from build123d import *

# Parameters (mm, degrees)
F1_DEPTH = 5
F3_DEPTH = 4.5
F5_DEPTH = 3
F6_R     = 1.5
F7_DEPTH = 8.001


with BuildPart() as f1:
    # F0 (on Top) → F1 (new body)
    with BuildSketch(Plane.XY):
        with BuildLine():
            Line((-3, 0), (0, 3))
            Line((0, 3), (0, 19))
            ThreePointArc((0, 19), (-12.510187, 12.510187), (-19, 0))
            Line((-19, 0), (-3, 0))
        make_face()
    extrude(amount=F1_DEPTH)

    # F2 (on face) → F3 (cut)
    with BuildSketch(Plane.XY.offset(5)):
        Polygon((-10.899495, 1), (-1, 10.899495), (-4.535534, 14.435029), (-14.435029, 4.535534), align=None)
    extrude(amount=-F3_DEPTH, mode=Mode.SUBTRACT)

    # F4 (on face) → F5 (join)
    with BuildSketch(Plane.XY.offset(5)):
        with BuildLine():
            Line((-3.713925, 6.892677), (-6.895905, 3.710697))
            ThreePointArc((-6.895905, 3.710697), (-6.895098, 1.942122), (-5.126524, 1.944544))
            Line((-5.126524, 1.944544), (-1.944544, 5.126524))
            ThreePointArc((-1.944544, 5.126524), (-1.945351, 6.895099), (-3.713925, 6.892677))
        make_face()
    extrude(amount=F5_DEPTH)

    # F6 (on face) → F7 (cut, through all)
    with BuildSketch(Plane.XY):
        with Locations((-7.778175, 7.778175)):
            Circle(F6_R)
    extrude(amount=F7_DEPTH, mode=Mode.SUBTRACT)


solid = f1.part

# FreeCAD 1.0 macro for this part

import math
import FreeCAD as App
import Part
import Sketcher

V = App.Vector
Q = App.Units.Quantity

doc = App.newDocument("Part")
body = doc.addObject("PartDesign::Body", "Body")

# Sketch on XY plane
sketch1 = body.newObject("Sketcher::SketchObject", "Sketch")
sketch1.AttachmentSupport = (doc.getObject("XY_Plane"), [""])
sketch1.MapMode = "FlatFace"
sketch1.addGeometry([
    Part.LineSegment(V(-3, 0, 0), V(0, 3, 0)),
    Part.LineSegment(V(0, 3, 0), V(0, 19, 0)),
    Part.ArcOfCircle(Part.Circle(V(4, -4, 0), V(0, 0, 1), 23.3), math.radians(100), math.radians(170)),
    Part.LineSegment(V(-19, 0, 0), V(-3, 0, 0)),
], False)
sketch1.addConstraint([
    Sketcher.Constraint("Coincident", 0, 2, 1, 1),
    Sketcher.Constraint("Coincident", 1, 2, 2, 1),
    Sketcher.Constraint("Coincident", 2, 2, 3, 1),
    Sketcher.Constraint("Coincident", 3, 2, 0, 1),
    Sketcher.Constraint("Vertical", 1),
    Sketcher.Constraint("Horizontal", 3),
    Sketcher.Constraint("PointOnObject", 0, 2, -2),
    Sketcher.Constraint("PointOnObject", 2, 2, -1),
    Sketcher.Constraint("Equal", 3, 1),
    Sketcher.Constraint("DistanceX", 3, 1, 3, 2, Q("16 mm")),
    Sketcher.Constraint("Angle", 0, Q("45 deg")),
    Sketcher.Constraint("DistanceY", -1, 1, 0, 2, Q("3 mm")),
    Sketcher.Constraint("Radius", 2, Q("23.328664 mm")),
])
pad1 = body.newObject("PartDesign::Pad", "Pad")
pad1.Profile = sketch1
pad1.Length = 5

# Sketch on XY plane
sketch2 = body.newObject("Sketcher::SketchObject", "Sketch001")
sketch2.AttachmentSupport = (doc.getObject("XY_Plane"), [""])
sketch2.MapMode = "FlatFace"
sketch2.AttachmentOffset = App.Placement(V(0, 0, 5), App.Rotation())
sketch2.addGeometry([
    Part.LineSegment(V(-11, 1, 0), V(-1, 11, 0)),
    Part.LineSegment(V(-1, 11, 0), V(-5, 14, 0)),
    Part.LineSegment(V(-5, 14, 0), V(-14, 5, 0)),
    Part.LineSegment(V(-14, 5, 0), V(-11, 1, 0)),
], False)
sketch2.addConstraint([
    Sketcher.Constraint("Coincident", 0, 2, 1, 1),
    Sketcher.Constraint("Coincident", 1, 2, 2, 1),
    Sketcher.Constraint("Coincident", 2, 2, 3, 1),
    Sketcher.Constraint("Coincident", 3, 2, 0, 1),
    Sketcher.Constraint("Perpendicular", 0, 1),
    Sketcher.Constraint("Perpendicular", 1, 2),
    Sketcher.Constraint("Perpendicular", 2, 3),
    Sketcher.Constraint("Angle", 0, Q("45 deg")),
    Sketcher.Constraint("Distance", 0, Q("14 mm")),
    Sketcher.Constraint("Distance", 1, Q("5 mm")),
    Sketcher.Constraint("DistanceX", 0, 2, -1, 1, Q("1 mm")),
    Sketcher.Constraint("DistanceY", -1, 1, 3, 2, Q("1 mm")),
])
pocket1 = body.newObject("PartDesign::Pocket", "Pocket")
pocket1.Profile = sketch2
pocket1.Length = 4.5

# Sketch on XY plane
sketch3 = body.newObject("Sketcher::SketchObject", "Sketch002")
sketch3.AttachmentSupport = (doc.getObject("XY_Plane"), [""])
sketch3.MapMode = "FlatFace"
sketch3.AttachmentOffset = App.Placement(V(0, 0, 5), App.Rotation())
sketch3.addGeometry([
    Part.LineSegment(V(-3.7, 6.9, 0), V(-6.9, 3.7, 0)),
    Part.ArcOfCircle(Part.Circle(V(-6, 2.8, 0), V(0, 0, 1), 1.3), math.radians(135), math.radians(315)),
    Part.LineSegment(V(-5.1, 1.9, 0), V(-1.9, 5.1, 0)),
    Part.ArcOfCircle(Part.Circle(V(-2.8, 6, 0), V(0, 0, 1), 1.3), math.radians(-45), math.radians(135)),
], False)
sketch3.addConstraint([
    Sketcher.Constraint("Tangent", 0, 2, 1, 1),
    Sketcher.Constraint("Coincident", 1, 2, 2, 1),
    Sketcher.Constraint("Tangent", 2, 2, 3, 1),
    Sketcher.Constraint("Coincident", 3, 2, 0, 1),
    Sketcher.Constraint("Equal", 1, 3),
    Sketcher.Constraint("Equal", 0, 2),
    Sketcher.Constraint("Angle", 0, Q("-135 deg")),
    Sketcher.Constraint("Radius", 1, Q("1.250001 mm")),
    Sketcher.Constraint("Distance", 0, Q("4.499999 mm")),
    Sketcher.Constraint("DistanceX", 1, 2, 3, 2, Q("1.412599 mm")),
    Sketcher.Constraint("DistanceX", 1, 3, -1, 1, Q("6.012021 mm")),
    Sketcher.Constraint("DistanceY", -1, 1, 3, 3, Q("6.010408 mm")),
])
pad2 = body.newObject("PartDesign::Pad", "Pad001")
pad2.Profile = sketch3
pad2.Length = 3

# Sketch on XY plane
sketch4 = body.newObject("Sketcher::SketchObject", "Sketch003")
sketch4.AttachmentSupport = (doc.getObject("XY_Plane"), [""])
sketch4.MapMode = "FlatFace"
sketch4.addGeometry(Part.Circle(V(-7.8, 7.8, 0), V(0, 0, 1), 1.5), False)
sketch4.addConstraint([
    Sketcher.Constraint("Diameter", 0, Q("3 mm")),
    Sketcher.Constraint("DistanceX", 0, 3, -1, 1, Q("7.778175 mm")),
    Sketcher.Constraint("DistanceY", -1, 1, 0, 3, Q("7.778175 mm")),
])
pocket2 = body.newObject("PartDesign::Pocket", "Pocket001")
pocket2.Profile = sketch4
pocket2.Type = "ThroughAll"
pocket2.Reversed = True

doc.recompute()
